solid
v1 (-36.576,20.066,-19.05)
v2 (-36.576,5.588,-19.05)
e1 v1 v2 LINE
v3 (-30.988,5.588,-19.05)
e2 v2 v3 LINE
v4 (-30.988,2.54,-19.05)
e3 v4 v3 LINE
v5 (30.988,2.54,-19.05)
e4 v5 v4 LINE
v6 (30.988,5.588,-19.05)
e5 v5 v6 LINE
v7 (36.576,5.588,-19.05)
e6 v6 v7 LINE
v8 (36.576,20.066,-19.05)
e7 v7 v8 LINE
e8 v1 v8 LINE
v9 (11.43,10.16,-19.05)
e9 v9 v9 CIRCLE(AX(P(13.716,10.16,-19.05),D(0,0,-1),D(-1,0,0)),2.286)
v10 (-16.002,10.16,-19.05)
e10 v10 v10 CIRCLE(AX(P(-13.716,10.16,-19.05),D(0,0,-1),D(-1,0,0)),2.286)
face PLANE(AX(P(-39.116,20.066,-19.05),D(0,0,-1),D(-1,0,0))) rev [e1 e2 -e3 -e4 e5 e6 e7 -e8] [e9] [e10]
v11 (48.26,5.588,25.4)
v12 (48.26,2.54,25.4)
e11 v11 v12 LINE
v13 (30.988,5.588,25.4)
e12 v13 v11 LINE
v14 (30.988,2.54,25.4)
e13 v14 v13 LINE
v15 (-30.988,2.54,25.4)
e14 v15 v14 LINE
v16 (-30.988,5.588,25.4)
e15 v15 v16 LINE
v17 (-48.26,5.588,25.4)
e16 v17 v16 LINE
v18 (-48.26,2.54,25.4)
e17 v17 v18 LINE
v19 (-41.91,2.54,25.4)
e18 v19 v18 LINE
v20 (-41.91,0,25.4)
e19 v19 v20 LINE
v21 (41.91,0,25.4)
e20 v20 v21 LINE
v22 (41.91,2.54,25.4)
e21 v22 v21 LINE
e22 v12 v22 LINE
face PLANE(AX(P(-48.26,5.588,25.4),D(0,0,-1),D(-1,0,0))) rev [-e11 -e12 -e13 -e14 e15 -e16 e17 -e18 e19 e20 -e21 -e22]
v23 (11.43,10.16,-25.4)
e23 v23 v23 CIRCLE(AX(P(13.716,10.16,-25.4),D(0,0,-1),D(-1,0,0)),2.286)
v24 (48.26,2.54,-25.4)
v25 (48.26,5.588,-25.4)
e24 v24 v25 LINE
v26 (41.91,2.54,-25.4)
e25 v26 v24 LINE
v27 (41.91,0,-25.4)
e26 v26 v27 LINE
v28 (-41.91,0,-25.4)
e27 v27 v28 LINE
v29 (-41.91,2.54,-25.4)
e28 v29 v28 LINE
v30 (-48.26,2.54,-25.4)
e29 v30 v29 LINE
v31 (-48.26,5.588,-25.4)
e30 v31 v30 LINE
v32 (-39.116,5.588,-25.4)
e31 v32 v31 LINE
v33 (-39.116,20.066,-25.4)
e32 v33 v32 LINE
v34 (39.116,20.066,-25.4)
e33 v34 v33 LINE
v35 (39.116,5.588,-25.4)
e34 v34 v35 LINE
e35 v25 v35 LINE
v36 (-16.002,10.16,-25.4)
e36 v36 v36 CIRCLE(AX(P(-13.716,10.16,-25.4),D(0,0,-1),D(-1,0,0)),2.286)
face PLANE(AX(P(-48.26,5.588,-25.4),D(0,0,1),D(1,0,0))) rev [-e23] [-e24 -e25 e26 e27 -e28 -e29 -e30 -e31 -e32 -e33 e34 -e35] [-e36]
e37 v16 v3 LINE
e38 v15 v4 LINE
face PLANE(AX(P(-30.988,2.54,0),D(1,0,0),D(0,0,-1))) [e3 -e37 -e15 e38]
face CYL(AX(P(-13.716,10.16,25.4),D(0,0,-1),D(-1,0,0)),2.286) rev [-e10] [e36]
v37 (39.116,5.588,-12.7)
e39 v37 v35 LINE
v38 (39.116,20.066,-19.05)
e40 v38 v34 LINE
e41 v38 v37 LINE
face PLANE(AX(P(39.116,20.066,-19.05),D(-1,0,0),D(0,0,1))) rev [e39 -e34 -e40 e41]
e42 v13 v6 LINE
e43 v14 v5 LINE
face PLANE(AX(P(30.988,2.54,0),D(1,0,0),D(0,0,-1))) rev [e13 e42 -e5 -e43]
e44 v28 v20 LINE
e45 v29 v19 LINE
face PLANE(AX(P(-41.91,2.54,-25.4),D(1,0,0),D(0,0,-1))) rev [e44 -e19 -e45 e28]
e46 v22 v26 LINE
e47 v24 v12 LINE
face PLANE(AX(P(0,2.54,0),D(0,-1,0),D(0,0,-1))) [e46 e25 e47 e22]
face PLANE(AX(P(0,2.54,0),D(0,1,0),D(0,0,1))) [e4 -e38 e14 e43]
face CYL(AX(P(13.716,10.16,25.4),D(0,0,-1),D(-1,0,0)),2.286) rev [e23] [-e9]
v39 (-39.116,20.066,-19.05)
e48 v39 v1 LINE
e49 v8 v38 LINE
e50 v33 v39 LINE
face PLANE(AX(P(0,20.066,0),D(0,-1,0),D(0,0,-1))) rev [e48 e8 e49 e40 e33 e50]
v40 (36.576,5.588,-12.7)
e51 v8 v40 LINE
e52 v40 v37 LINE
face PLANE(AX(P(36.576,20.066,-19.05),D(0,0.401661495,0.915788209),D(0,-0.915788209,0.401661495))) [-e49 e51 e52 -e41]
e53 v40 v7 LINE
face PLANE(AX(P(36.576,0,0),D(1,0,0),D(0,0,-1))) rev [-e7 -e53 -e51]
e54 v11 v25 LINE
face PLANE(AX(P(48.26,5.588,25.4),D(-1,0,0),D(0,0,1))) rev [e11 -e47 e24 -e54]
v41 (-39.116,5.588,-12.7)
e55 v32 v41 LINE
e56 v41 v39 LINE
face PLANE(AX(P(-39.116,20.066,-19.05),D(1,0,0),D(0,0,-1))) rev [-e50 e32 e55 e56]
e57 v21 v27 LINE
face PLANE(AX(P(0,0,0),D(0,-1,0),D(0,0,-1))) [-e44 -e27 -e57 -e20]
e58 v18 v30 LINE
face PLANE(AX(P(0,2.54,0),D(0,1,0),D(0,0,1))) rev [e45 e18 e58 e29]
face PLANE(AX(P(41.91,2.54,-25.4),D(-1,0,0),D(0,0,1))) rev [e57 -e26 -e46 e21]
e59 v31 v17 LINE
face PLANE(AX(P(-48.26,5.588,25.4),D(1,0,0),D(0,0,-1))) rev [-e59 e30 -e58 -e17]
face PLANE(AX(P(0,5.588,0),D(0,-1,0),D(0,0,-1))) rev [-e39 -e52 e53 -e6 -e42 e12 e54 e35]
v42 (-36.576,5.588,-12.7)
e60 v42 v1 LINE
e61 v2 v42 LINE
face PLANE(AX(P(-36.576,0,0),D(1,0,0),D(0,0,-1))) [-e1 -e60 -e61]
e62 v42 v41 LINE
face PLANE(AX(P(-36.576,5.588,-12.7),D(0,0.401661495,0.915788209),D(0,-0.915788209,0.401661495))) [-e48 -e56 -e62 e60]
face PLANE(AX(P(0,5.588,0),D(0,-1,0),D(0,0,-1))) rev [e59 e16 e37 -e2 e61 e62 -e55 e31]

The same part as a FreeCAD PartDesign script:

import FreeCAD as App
import Part
import Sketcher
from FreeCAD import Vector
Q = App.Units.Quantity


def add_polygon(sketch, points):
    """Adds a closed chain of lines whose ends are joined by coincident constraints."""
    first, n = sketch.GeometryCount, len(points)
    for a, b in zip(points, points[1:] + points[:1]):
        sketch.addGeometry(Part.LineSegment(App.Vector(*a, 0), App.Vector(*b, 0)), False)
    for i in range(n):
        sketch.addConstraint(Sketcher.Constraint("Coincident", first + i, 2, first + (i + 1) % n, 1))

doc = App.newDocument("Part")
body = doc.addObject("PartDesign::Body", "Body")

sketch1 = body.newObject("Sketcher::SketchObject", "Sketch")
sketch1.AttachmentSupport = (doc.getObject("XZ_Plane"), [""])
sketch1.MapMode = "FlatFace"
add_polygon(sketch1, [(-48.26, -25.4), (-48.26, 25.4), (48.26, 25.4), (48.26, -25.4)])
sketch1.addConstraint([
    Sketcher.Constraint("Vertical", 0),
    Sketcher.Constraint("Horizontal", 1),
    Sketcher.Constraint("Vertical", 2),
    Sketcher.Constraint("Horizontal", 3),
    Sketcher.Constraint("Symmetric", 0, 2, 2, 2, -1, 1),
    Sketcher.Constraint("DistanceY", 0, 1, 0, 2, Q("2 in")),
    Sketcher.Constraint("DistanceX", 1, 1, 1, 2, Q("3.8 in")),
])
pad1 = body.newObject("PartDesign::Pad", "Pad")
pad1.Profile = sketch1
pad1.Length = Q("0.22 in")
pad1.Reversed = True

sketch2 = body.newObject("Sketcher::SketchObject", "Sketch001")
sketch2.AttachmentSupport = (doc.getObject("XZ_Plane"), [""])
sketch2.MapMode = "FlatFace"
sketch2.AttachmentOffset = App.Placement(Vector(0, 0, -0.22 * 25.4), App.Rotation())
add_polygon(sketch2, [(-30.988, -25.4), (-30.988, 25.4), (30.988, 25.4), (30.988, -25.4)])
sketch2.addConstraint([
    Sketcher.Constraint("Vertical", 0),
    Sketcher.Constraint("Horizontal", 1),
    Sketcher.Constraint("Vertical", 2),
    Sketcher.Constraint("Horizontal", 3),
    Sketcher.Constraint("Symmetric", 0, 2, 2, 2, -1, 1),
    Sketcher.Constraint("DistanceY", 0, 1, 0, 2, Q("2 in")),
    Sketcher.Constraint("DistanceX", 1, 1, 1, 2, Q("2.44 in")),
])
pocket1 = body.newObject("PartDesign::Pocket", "Pocket")
pocket1.Profile = sketch2
pocket1.Length = Q("0.12 in")
pocket1.Reversed = True

sketch3 = body.newObject("Sketcher::SketchObject", "Sketch002")
sketch3.AttachmentSupport = (doc.getObject("XZ_Plane"), [""])
sketch3.MapMode = "FlatFace"
add_polygon(sketch3, [(48.26, -25.4), (48.26, 25.4), (41.91, 25.4), (41.91, -25.4)])
add_polygon(sketch3, [(-41.91, -25.4), (-41.91, 25.4), (-48.26, 25.4), (-48.26, -25.4)])
sketch3.addConstraint([
    Sketcher.Constraint("Vertical", 0),
    Sketcher.Constraint("Horizontal", 1),
    Sketcher.Constraint("Vertical", 2),
    Sketcher.Constraint("Horizontal", 3),
    Sketcher.Constraint("Vertical", 4),
    Sketcher.Constraint("Horizontal", 5),
    Sketcher.Constraint("Vertical", 6),
    Sketcher.Constraint("Horizontal", 7),
    Sketcher.Constraint("Symmetric", 2, 2, 4, 2, -1, 1),
    Sketcher.Constraint("Symmetric", 0, 2, 6, 2, -1, 1),
    Sketcher.Constraint("Horizontal", 1, 2, 4, 2),
    Sketcher.Constraint("DistanceY", 0, 1, 0, 2, Q("2 in")),
    Sketcher.Constraint("DistanceX", 1, 2, 1, 1, Q("0.25 in")),
    Sketcher.Constraint("DistanceX", -1, 1, 0, 2, Q("1.9 in")),
])
pocket2 = body.newObject("PartDesign::Pocket", "Pocket001")
pocket2.Profile = sketch3
pocket2.Length = Q("0.1 in")

sketch4 = body.newObject("Sketcher::SketchObject", "Sketch003")
sketch4.AttachmentSupport = (doc.getObject("XZ_Plane"), [""])
sketch4.MapMode = "FlatFace"
sketch4.AttachmentOffset = App.Placement(Vector(0, 0, -0.1 * 25.4), App.Rotation())
add_polygon(sketch4, [(-39.116, -25.4), (-39.116, -19.05), (39.116, -19.05), (39.116, -25.4)])
sketch4.addConstraint([
    Sketcher.Constraint("Vertical", 0),
    Sketcher.Constraint("Horizontal", 1),
    Sketcher.Constraint("Vertical", 2),
    Sketcher.Constraint("Horizontal", 3),
    Sketcher.Constraint("DistanceY", 2, 2, -1, 1, Q("1 in")),
    Sketcher.Constraint("DistanceX", 1, 1, 1, 2, Q("3.08 in")),
    Sketcher.Constraint("DistanceY", 0, 1, 0, 2, Q("0.25 in")),
    Sketcher.Constraint("DistanceX", 0, 2, -1, 1, Q("1.54 in")),
])
pad2 = body.newObject("PartDesign::Pad", "Pad001")
pad2.Profile = sketch4
pad2.Length = Q("0.69 in")
pad2.Reversed = True

sketch5 = body.newObject("Sketcher::SketchObject", "Sketch004")
sketch5.AttachmentSupport = (doc.getObject("XY_Plane"), [""])
sketch5.MapMode = "FlatFace"
sketch5.AttachmentOffset = App.Placement(Vector(0, 0, -1 * 25.4), App.Rotation())
sketch5.addGeometry([
    Part.Circle(Vector(-13.716, 10.16, 0), Vector(0, 0, 1), 2.286),
    Part.Circle(Vector(13.716, 10.16, 0), Vector(0, 0, 1), 2.286),
], False)
sketch5.addConstraint([
    Sketcher.Constraint("Equal", 0, 1),
    Sketcher.Constraint("Symmetric", 0, 3, 1, 3, -2),
    Sketcher.Constraint("Diameter", 0, Q("0.18 in")),
    Sketcher.Constraint("DistanceY", -1, 1, 0, 3, Q("0.4 in")),
    Sketcher.Constraint("DistanceX", 0, 3, -1, 1, Q("0.54 in")),
])
pocket3 = body.newObject("PartDesign::Pocket", "Pocket002")
pocket3.Profile = sketch5
pocket3.Type = "ThroughAll"
pocket3.Reversed = True

sketch6 = body.newObject("Sketcher::SketchObject", "Sketch005")
sketch6.AttachmentSupport = (doc.getObject("YZ_Plane"), [""])
sketch6.MapMode = "FlatFace"
sketch6.AttachmentOffset = App.Placement(Vector(0, 0, -1.54 * 25.4), App.Rotation())
add_polygon(sketch6, [(5.588, -19.05), (5.588, -12.7), (20.066, -19.05)])
sketch6.addConstraint([
    Sketcher.Constraint("Vertical", 0),
    Sketcher.Constraint("Horizontal", 2),
    Sketcher.Constraint("DistanceX", 2, 2, 2, 1, Q("0.57 in")),
    Sketcher.Constraint("DistanceY", 0, 1, 0, 2, Q("0.25 in")),
    Sketcher.Constraint("DistanceY", 0, 2, -1, 1, Q("0.5 in")),
    Sketcher.Constraint("DistanceX", -1, 1, 0, 2, Q("0.22 in")),
])
pad3 = body.newObject("PartDesign::Pad", "Pad002")
pad3.Profile = sketch6
pad3.Length = Q("0.1 in")

sketch7 = body.newObject("Sketcher::SketchObject", "Sketch006")
sketch7.AttachmentSupport = (doc.getObject("YZ_Plane"), [""])
sketch7.MapMode = "FlatFace"
sketch7.AttachmentOffset = App.Placement(Vector(0, 0, 1.54 * 25.4), App.Rotation())
add_polygon(sketch7, [(5.588, -19.05), (20.066, -19.05), (5.588, -12.7)])
sketch7.addConstraint([
    Sketcher.Constraint("Horizontal", 0),
    Sketcher.Constraint("Vertical", 2),
    Sketcher.Constraint("DistanceX", 0, 1, 0, 2, Q("0.57 in")),
    Sketcher.Constraint("DistanceY", 2, 2, 2, 1, Q("0.25 in")),
    Sketcher.Constraint("DistanceY", 1, 2, -1, 1, Q("0.5 in")),
    Sketcher.Constraint("DistanceX", -1, 1, 0, 2, Q("0.79 in")),
])
pad4 = body.newObject("PartDesign::Pad", "Pad003")
pad4.Profile = sketch7
pad4.Length = Q("0.1 in")
pad4.Reversed = True

sketch8 = body.newObject("Sketcher::SketchObject", "Sketch007")
sketch8.AttachmentSupport = (doc.getObject("XZ_Plane"), [""])
sketch8.MapMode = "FlatFace"
sketch8.AttachmentOffset = App.Placement(Vector(0, 0, -0.22 * 25.4), App.Rotation())
add_polygon(sketch8, [(41.91, -25.4), (41.91, -16.51), (48.26, -16.51), (48.26, -25.4)])
add_polygon(sketch8, [(-48.26, -25.4), (-48.26, -16.51), (-41.91, -16.51), (-41.91, -25.4)])
sketch8.addConstraint([
    Sketcher.Constraint("Vertical", 0),
    Sketcher.Constraint("Horizontal", 1),
    Sketcher.Constraint("Vertical", 2),
    Sketcher.Constraint("Horizontal", 3),
    Sketcher.Constraint("Vertical", 4),
    Sketcher.Constraint("Horizontal", 5),
    Sketcher.Constraint("Vertical", 6),
    Sketcher.Constraint("Horizontal", 7),
    Sketcher.Constraint("Symmetric", 1, 2, 4, 2, -2),
    Sketcher.Constraint("Symmetric", 3, 2, 6, 2, -2),
    Sketcher.Constraint("DistanceY", 2, 2, -1, 1, Q("1 in")),
    Sketcher.Constraint("DistanceX", 1, 1, 1, 2, Q("0.25 in")),
    Sketcher.Constraint("DistanceY", 0, 1, 0, 2, Q("0.35 in")),
    Sketcher.Constraint("DistanceX", -1, 1, 1, 2, Q("1.9 in")),
])
pocket4 = body.newObject("PartDesign::Pocket", "Pocket003")
pocket4.Profile = sketch8
pocket4.Type = "ThroughAll"
pocket4.Reversed = True

sketch9 = body.newObject("Sketcher::SketchObject", "Sketch008")
sketch9.AttachmentSupport = (doc.getObject("XY_Plane"), [""])
sketch9.MapMode = "FlatFace"
sketch9.AttachmentOffset = App.Placement(Vector(0, 0, -0.65 * 25.4), App.Rotation())
add_polygon(sketch9, [(48.26, 5.588), (48.26, 2.54), (41.91, 2.54), (41.91, 5.588)])
add_polygon(sketch9, [(-41.91, 5.588), (-41.91, 2.54), (-48.26, 2.54), (-48.26, 5.588)])
sketch9.addConstraint([
    Sketcher.Constraint("Vertical", 0),
    Sketcher.Constraint("Horizontal", 1),
    Sketcher.Constraint("Vertical", 2),
    Sketcher.Constraint("Horizontal", 3),
    Sketcher.Constraint("Vertical", 4),
    Sketcher.Constraint("Horizontal", 5),
    Sketcher.Constraint("Vertical", 6),
    Sketcher.Constraint("Horizontal", 7),
    Sketcher.Constraint("Symmetric", 1, 2, 4, 2, -2),
    Sketcher.Constraint("Symmetric", 3, 2, 6, 2, -2),
    Sketcher.Constraint("DistanceX", 1, 2, 1, 1, Q("0.25 in")),
    Sketcher.Constraint("DistanceY", 0, 2, 0, 1, Q("0.12 in")),
    Sketcher.Constraint("DistanceX", -1, 1, 0, 2, Q("1.9 in")),
    Sketcher.Constraint("DistanceY", -1, 1, 0, 2, Q("0.1 in")),
])
pad5 = body.newObject("PartDesign::Pad", "Pad004")
pad5.Profile = sketch9
pad5.Length = Q("0.35 in")
pad5.Reversed = True

doc.recompute()
